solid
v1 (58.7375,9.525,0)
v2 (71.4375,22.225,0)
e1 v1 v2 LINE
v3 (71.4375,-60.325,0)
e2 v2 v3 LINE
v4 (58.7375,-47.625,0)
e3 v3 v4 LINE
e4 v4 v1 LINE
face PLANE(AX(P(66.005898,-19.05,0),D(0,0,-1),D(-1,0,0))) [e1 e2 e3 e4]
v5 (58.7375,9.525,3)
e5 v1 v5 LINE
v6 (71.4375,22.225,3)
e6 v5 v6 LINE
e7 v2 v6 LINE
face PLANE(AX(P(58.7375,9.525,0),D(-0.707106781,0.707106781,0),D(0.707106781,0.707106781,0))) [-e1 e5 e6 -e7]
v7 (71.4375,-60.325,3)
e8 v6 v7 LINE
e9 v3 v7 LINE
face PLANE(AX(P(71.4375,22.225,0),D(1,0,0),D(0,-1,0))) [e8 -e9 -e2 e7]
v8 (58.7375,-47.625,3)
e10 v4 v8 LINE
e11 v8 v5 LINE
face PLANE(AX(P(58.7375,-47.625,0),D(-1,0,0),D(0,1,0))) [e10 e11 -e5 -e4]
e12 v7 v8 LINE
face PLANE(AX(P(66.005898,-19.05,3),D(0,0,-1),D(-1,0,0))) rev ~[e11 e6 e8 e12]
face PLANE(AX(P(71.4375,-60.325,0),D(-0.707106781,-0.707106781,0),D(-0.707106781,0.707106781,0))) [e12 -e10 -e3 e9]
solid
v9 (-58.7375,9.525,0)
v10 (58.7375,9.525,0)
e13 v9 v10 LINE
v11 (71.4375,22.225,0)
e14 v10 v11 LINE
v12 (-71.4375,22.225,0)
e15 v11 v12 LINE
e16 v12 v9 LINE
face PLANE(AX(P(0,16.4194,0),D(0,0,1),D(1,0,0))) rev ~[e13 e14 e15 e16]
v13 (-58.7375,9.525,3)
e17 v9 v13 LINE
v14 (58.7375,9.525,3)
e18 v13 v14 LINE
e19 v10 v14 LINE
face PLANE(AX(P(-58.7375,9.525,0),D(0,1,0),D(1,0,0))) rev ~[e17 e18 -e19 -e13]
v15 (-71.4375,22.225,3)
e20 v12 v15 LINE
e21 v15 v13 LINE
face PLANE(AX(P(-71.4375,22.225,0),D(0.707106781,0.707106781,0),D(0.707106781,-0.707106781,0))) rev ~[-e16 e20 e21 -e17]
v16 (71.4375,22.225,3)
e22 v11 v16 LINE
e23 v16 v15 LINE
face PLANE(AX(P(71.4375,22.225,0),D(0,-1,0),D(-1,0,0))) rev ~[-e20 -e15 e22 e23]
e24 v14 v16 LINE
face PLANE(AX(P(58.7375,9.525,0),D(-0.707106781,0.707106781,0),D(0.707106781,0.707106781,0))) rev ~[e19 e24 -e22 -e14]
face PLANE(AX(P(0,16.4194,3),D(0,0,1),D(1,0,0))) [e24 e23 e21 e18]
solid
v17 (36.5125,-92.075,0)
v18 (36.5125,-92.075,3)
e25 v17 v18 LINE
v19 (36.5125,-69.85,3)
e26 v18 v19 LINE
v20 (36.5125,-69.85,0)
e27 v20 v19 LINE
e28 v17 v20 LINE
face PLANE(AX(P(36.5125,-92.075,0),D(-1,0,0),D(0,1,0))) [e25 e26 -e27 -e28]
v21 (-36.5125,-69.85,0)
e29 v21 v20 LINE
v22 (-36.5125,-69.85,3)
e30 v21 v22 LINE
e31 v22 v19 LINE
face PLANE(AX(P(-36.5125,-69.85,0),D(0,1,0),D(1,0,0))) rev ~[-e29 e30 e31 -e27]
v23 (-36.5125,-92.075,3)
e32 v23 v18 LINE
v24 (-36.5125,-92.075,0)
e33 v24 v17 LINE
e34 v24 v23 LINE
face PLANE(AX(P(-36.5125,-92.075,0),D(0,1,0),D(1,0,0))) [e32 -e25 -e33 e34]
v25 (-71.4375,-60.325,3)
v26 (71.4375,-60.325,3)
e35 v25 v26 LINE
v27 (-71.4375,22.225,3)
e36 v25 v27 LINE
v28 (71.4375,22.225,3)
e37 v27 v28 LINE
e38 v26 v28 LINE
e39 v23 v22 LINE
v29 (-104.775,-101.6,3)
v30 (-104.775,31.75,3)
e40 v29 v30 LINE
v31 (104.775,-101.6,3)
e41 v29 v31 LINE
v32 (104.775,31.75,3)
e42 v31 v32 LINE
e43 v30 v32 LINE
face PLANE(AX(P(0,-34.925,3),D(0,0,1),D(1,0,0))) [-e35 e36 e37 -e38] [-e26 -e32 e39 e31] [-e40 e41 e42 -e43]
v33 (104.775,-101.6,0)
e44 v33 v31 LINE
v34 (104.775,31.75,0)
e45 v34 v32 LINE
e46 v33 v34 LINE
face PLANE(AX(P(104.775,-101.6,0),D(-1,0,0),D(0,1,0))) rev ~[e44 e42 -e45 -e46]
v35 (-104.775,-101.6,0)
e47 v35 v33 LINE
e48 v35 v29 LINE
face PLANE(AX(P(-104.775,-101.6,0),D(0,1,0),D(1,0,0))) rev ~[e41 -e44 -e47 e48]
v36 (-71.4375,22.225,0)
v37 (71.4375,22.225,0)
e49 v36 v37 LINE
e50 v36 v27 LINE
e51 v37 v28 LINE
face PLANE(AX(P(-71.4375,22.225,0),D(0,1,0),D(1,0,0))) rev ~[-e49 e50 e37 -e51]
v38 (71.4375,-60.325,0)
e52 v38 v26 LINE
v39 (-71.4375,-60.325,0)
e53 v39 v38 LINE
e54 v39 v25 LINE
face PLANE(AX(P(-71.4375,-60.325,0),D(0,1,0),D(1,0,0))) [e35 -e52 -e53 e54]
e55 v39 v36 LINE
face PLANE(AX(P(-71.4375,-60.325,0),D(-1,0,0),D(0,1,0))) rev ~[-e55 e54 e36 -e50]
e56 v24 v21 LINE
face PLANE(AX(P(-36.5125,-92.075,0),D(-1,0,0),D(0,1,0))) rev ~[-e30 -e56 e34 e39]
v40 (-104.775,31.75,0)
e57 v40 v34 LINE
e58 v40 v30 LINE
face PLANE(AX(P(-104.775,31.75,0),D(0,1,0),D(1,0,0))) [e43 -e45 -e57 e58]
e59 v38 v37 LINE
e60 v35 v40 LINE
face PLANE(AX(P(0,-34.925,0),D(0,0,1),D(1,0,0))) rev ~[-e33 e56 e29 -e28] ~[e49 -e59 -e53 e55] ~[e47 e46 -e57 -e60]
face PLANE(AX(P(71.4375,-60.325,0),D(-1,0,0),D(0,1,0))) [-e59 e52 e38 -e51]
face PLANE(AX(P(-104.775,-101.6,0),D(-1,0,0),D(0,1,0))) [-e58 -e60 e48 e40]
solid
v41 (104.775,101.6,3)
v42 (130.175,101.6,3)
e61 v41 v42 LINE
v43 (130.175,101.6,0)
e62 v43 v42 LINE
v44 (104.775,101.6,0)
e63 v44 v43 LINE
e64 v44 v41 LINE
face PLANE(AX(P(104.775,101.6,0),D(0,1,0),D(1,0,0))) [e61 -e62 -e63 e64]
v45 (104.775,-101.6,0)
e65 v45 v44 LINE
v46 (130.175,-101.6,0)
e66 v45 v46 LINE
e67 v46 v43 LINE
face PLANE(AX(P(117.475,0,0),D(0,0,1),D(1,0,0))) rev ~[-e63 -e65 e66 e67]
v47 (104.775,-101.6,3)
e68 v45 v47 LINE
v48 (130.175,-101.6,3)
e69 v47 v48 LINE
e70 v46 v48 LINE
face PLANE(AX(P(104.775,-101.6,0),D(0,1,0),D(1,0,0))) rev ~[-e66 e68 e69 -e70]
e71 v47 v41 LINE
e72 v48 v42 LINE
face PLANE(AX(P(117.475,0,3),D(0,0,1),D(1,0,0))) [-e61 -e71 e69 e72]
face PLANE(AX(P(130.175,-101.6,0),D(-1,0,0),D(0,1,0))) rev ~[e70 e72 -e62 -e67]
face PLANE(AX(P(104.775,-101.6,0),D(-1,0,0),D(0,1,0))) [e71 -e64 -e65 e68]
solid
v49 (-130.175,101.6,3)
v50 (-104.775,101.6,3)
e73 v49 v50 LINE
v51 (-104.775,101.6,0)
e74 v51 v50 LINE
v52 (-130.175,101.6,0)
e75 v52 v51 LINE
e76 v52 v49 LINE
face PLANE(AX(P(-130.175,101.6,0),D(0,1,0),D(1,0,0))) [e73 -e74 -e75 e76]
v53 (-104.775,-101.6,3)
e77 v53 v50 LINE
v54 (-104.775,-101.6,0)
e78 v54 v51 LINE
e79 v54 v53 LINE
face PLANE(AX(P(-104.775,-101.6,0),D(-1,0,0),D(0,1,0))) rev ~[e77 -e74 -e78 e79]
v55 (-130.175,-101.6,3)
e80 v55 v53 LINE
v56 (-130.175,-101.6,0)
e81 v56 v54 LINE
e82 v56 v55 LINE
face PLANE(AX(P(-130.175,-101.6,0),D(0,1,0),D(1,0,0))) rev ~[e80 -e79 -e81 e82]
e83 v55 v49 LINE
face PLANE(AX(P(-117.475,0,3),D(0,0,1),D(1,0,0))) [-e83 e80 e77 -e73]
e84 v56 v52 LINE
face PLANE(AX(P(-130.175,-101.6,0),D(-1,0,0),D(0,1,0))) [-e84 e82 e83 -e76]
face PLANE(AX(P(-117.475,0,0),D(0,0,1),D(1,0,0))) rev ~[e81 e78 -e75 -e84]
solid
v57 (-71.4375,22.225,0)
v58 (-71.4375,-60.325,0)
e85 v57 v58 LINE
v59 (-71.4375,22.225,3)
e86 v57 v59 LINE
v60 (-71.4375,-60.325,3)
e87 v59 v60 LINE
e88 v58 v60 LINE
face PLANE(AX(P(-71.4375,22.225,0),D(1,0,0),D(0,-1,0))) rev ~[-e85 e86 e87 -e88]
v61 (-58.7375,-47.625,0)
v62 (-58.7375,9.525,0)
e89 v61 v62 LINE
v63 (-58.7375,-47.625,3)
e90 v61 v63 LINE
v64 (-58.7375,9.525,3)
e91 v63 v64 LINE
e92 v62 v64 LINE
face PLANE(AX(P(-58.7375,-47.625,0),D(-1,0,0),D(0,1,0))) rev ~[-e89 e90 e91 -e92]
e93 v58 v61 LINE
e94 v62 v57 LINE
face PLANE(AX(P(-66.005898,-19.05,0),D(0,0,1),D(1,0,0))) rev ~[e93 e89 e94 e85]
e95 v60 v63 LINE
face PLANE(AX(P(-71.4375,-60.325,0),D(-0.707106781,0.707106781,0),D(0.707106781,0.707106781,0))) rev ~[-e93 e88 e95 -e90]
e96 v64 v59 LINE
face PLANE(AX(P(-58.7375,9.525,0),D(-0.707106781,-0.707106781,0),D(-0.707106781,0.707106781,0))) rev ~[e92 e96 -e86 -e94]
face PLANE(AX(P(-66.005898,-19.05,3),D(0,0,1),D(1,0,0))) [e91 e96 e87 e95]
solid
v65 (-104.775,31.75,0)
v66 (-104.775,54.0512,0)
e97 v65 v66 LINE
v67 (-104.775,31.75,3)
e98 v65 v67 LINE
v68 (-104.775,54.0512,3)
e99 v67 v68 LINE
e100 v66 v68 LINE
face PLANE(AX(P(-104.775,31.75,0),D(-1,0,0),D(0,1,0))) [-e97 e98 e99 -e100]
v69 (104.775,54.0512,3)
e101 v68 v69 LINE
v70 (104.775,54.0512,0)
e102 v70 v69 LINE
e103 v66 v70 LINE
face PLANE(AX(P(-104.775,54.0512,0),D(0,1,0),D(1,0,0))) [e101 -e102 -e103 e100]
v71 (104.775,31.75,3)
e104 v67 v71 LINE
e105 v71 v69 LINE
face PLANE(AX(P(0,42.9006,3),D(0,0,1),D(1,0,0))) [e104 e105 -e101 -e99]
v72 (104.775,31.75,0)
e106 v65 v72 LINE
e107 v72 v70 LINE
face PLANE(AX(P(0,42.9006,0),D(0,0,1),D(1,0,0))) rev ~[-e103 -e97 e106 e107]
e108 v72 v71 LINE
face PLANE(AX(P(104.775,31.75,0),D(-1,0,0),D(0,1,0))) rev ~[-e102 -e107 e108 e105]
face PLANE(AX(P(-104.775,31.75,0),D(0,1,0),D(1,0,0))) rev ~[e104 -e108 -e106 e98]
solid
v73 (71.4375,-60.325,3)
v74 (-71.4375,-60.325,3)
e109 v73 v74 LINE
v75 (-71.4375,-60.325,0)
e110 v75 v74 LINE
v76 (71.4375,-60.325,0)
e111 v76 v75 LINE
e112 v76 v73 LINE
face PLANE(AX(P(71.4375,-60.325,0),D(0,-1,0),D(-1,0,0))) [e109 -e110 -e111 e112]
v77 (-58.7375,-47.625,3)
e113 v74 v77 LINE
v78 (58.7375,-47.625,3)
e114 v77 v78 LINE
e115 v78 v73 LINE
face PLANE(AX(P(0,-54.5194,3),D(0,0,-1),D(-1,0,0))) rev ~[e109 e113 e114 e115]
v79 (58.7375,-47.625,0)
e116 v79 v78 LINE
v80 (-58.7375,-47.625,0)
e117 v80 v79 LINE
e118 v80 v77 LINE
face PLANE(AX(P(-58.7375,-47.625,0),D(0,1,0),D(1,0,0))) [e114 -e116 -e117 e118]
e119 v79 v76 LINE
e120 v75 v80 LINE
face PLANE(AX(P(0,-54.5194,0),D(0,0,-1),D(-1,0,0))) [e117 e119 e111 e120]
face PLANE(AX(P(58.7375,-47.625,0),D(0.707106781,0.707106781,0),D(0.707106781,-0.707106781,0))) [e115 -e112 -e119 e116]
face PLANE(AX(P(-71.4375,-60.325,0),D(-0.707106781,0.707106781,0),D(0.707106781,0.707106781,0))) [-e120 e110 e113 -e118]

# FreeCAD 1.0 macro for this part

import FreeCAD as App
import Part
import Sketcher

V = App.Vector
Q = App.Units.Quantity

doc = App.newDocument("Part")
body = doc.addObject("PartDesign::Body", "Body")

sketch1 = doc.addObject("Sketcher::SketchObject", "Sketch")
body.addObject(sketch1)
sketch1.AttachmentSupport = (doc.XY_Plane, [""])
sketch1.MapMode = "FlatFace"
sketch1.addGeometry(Part.LineSegment(V(-105, 32, 0), V(-105, -102, 0)), False)
sketch1.addGeometry(Part.LineSegment(V(-105, -102, 0), V(105, -102, 0)), False)
sketch1.addGeometry(Part.LineSegment(V(105, -102, 0), V(105, 32, 0)), False)
sketch1.addGeometry(Part.LineSegment(V(105, 32, 0), V(-105, 32, 0)), False)
sketch1.addGeometry(Part.LineSegment(V(37, -92, 0), V(-37, -92, 0)), False)
sketch1.addGeometry(Part.LineSegment(V(-37, -92, 0), V(-37, -70, 0)), False)
sketch1.addGeometry(Part.LineSegment(V(-37, -70, 0), V(37, -70, 0)), False)
sketch1.addGeometry(Part.LineSegment(V(37, -70, 0), V(37, -92, 0)), False)
sketch1.addGeometry(Part.LineSegment(V(71, -60, 0), V(-71, -60, 0)), False)
sketch1.addGeometry(Part.LineSegment(V(-71, -60, 0), V(-71, 22, 0)), False)
sketch1.addGeometry(Part.LineSegment(V(-71, 22, 0), V(71, 22, 0)), False)
sketch1.addGeometry(Part.LineSegment(V(71, 22, 0), V(71, -60, 0)), False)
sketch1.addConstraint(Sketcher.Constraint("Coincident", 0, 2, 1, 1))
sketch1.addConstraint(Sketcher.Constraint("Coincident", 1, 2, 2, 1))
sketch1.addConstraint(Sketcher.Constraint("Coincident", 2, 2, 3, 1))
sketch1.addConstraint(Sketcher.Constraint("Coincident", 3, 2, 0, 1))
sketch1.addConstraint(Sketcher.Constraint("Coincident", 4, 2, 5, 1))
sketch1.addConstraint(Sketcher.Constraint("Coincident", 5, 2, 6, 1))
sketch1.addConstraint(Sketcher.Constraint("Coincident", 6, 2, 7, 1))
sketch1.addConstraint(Sketcher.Constraint("Coincident", 7, 2, 4, 1))
sketch1.addConstraint(Sketcher.Constraint("Coincident", 8, 2, 9, 1))
sketch1.addConstraint(Sketcher.Constraint("Coincident", 9, 2, 10, 1))
sketch1.addConstraint(Sketcher.Constraint("Coincident", 10, 2, 11, 1))
sketch1.addConstraint(Sketcher.Constraint("Coincident", 11, 2, 8, 1))
sketch1.addConstraint(Sketcher.Constraint("Vertical", 0))
sketch1.addConstraint(Sketcher.Constraint("Horizontal", 1))
sketch1.addConstraint(Sketcher.Constraint("Vertical", 2))
sketch1.addConstraint(Sketcher.Constraint("Horizontal", 3))
sketch1.addConstraint(Sketcher.Constraint("Horizontal", 4))
sketch1.addConstraint(Sketcher.Constraint("Vertical", 5))
sketch1.addConstraint(Sketcher.Constraint("Horizontal", 6))
sketch1.addConstraint(Sketcher.Constraint("Vertical", 7))
sketch1.addConstraint(Sketcher.Constraint("Horizontal", 8))
sketch1.addConstraint(Sketcher.Constraint("Vertical", 9))
sketch1.addConstraint(Sketcher.Constraint("Horizontal", 10))
sketch1.addConstraint(Sketcher.Constraint("Vertical", 11))
sketch1.addConstraint(Sketcher.Constraint("DistanceY", 0, 2, -1, 1, Q("4 in")))
sketch1.addConstraint(Sketcher.Constraint("DistanceY", 5, 2, 3, 2, Q("4 in")))
sketch1.addConstraint(Sketcher.Constraint("DistanceX", 1, 1, 1, 2, Q("8.25 in")))
sketch1.addConstraint(Sketcher.Constraint("DistanceY", 0, 2, 0, 1, Q("5.25 in")))
sketch1.addConstraint(Sketcher.Constraint("DistanceY", 9, 1, 9, 2, Q("3.25 in")))
sketch1.addConstraint(Sketcher.Constraint("DistanceY", 4, 2, 9, 2, Q("4.5 in")))
sketch1.addConstraint(Sketcher.Constraint("DistanceX", 4, 2, 4, 1, Q("2.875 in")))
sketch1.addConstraint(Sketcher.Constraint("DistanceX", 8, 2, 8, 1, Q("5.625 in")))
sketch1.addConstraint(Sketcher.Constraint("DistanceY", 5, 1, 5, 2, Q("0.875 in")))
sketch1.addConstraint(Sketcher.Constraint("DistanceX", 8, 2, 6, 2, Q("4.25 in")))
sketch1.addConstraint(Sketcher.Constraint("DistanceX", 0, 2, -1, 1, Q("4.125 in")))
sketch1.addConstraint(Sketcher.Constraint("DistanceX", 4, 2, -1, 1, Q("1.4375 in")))
pad1 = doc.addObject("PartDesign::Pad", "Pad")
body.addObject(pad1)
pad1.Profile = sketch1
pad1.Length = 3
body2 = doc.addObject("PartDesign::Body", "Body001")

sketch2 = doc.addObject("Sketcher::SketchObject", "Sketch001")
body2.addObject(sketch2)
sketch2.AttachmentSupport = (doc.getObject("XY_Plane001"), [""])
sketch2.MapMode = "FlatFace"
sketch2.addGeometry(Part.LineSegment(V(-105, 54, 0), V(-105, 32, 0)), False)
sketch2.addGeometry(Part.LineSegment(V(-105, 32, 0), V(105, 32, 0)), False)
sketch2.addGeometry(Part.LineSegment(V(105, 32, 0), V(105, 54, 0)), False)
sketch2.addGeometry(Part.LineSegment(V(105, 54, 0), V(-105, 54, 0)), False)
sketch2.addConstraint(Sketcher.Constraint("Coincident", 0, 2, 1, 1))
sketch2.addConstraint(Sketcher.Constraint("Coincident", 1, 2, 2, 1))
sketch2.addConstraint(Sketcher.Constraint("Coincident", 2, 2, 3, 1))
sketch2.addConstraint(Sketcher.Constraint("Coincident", 3, 2, 0, 1))
sketch2.addConstraint(Sketcher.Constraint("Vertical", 0))
sketch2.addConstraint(Sketcher.Constraint("Horizontal", 1))
sketch2.addConstraint(Sketcher.Constraint("Vertical", 2))
sketch2.addConstraint(Sketcher.Constraint("Horizontal", 3))
sketch2.addConstraint(Sketcher.Constraint("DistanceX", 1, 1, 1, 2, Q("8.25 in")))
sketch2.addConstraint(Sketcher.Constraint("DistanceY", 0, 2, 0, 1, Q("0.878 in")))
sketch2.addConstraint(Sketcher.Constraint("DistanceY", -1, 1, 0, 2, Q("1.25 in")))
sketch2.addConstraint(Sketcher.Constraint("DistanceX", 0, 2, -1, 1, Q("4.125 in")))
pad2 = doc.addObject("PartDesign::Pad", "Pad001")
body2.addObject(pad2)
pad2.Profile = sketch2
pad2.Length = 3
body3 = doc.addObject("PartDesign::Body", "Body002")

sketch3 = doc.addObject("Sketcher::SketchObject", "Sketch002")
body3.addObject(sketch3)
sketch3.AttachmentSupport = (doc.getObject("XY_Plane002"), [""])
sketch3.MapMode = "FlatFace"
sketch3.addGeometry(Part.LineSegment(V(-130, 102, 0), V(-130, -102, 0)), False)
sketch3.addGeometry(Part.LineSegment(V(-130, -102, 0), V(-105, -102, 0)), False)
sketch3.addGeometry(Part.LineSegment(V(-105, -102, 0), V(-105, 102, 0)), False)
sketch3.addGeometry(Part.LineSegment(V(-105, 102, 0), V(-130, 102, 0)), False)
sketch3.addConstraint(Sketcher.Constraint("Coincident", 0, 2, 1, 1))
sketch3.addConstraint(Sketcher.Constraint("Coincident", 1, 2, 2, 1))
sketch3.addConstraint(Sketcher.Constraint("Coincident", 2, 2, 3, 1))
sketch3.addConstraint(Sketcher.Constraint("Coincident", 3, 2, 0, 1))
sketch3.addConstraint(Sketcher.Constraint("Vertical", 0))
sketch3.addConstraint(Sketcher.Constraint("Horizontal", 1))
sketch3.addConstraint(Sketcher.Constraint("Vertical", 2))
sketch3.addConstraint(Sketcher.Constraint("Horizontal", 3))
sketch3.addConstraint(Sketcher.Constraint("DistanceX", 1, 1, 1, 2, Q("1 in")))
sketch3.addConstraint(Sketcher.Constraint("DistanceY", 0, 2, 0, 1, Q("8 in")))
sketch3.addConstraint(Sketcher.Constraint("DistanceY", 0, 2, -1, 1, Q("4 in")))
sketch3.addConstraint(Sketcher.Constraint("DistanceX", 0, 2, -1, 1, Q("5.125 in")))
pad3 = doc.addObject("PartDesign::Pad", "Pad002")
body3.addObject(pad3)
pad3.Profile = sketch3
pad3.Length = 3
body4 = doc.addObject("PartDesign::Body", "Body003")

sketch4 = doc.addObject("Sketcher::SketchObject", "Sketch003")
body4.addObject(sketch4)
sketch4.AttachmentSupport = (doc.getObject("XY_Plane003"), [""])
sketch4.MapMode = "FlatFace"
sketch4.addGeometry(Part.LineSegment(V(105, 102, 0), V(105, -102, 0)), False)
sketch4.addGeometry(Part.LineSegment(V(105, -102, 0), V(130, -102, 0)), False)
sketch4.addGeometry(Part.LineSegment(V(130, -102, 0), V(130, 102, 0)), False)
sketch4.addGeometry(Part.LineSegment(V(130, 102, 0), V(105, 102, 0)), False)
sketch4.addConstraint(Sketcher.Constraint("Coincident", 0, 2, 1, 1))
sketch4.addConstraint(Sketcher.Constraint("Coincident", 1, 2, 2, 1))
sketch4.addConstraint(Sketcher.Constraint("Coincident", 2, 2, 3, 1))
sketch4.addConstraint(Sketcher.Constraint("Coincident", 3, 2, 0, 1))
sketch4.addConstraint(Sketcher.Constraint("Vertical", 0))
sketch4.addConstraint(Sketcher.Constraint("Horizontal", 1))
sketch4.addConstraint(Sketcher.Constraint("Vertical", 2))
sketch4.addConstraint(Sketcher.Constraint("Horizontal", 3))
sketch4.addConstraint(Sketcher.Constraint("DistanceX", 1, 1, 1, 2, Q("1 in")))
sketch4.addConstraint(Sketcher.Constraint("DistanceY", 0, 2, 0, 1, Q("8 in")))
sketch4.addConstraint(Sketcher.Constraint("DistanceY", 0, 2, -1, 1, Q("4 in")))
sketch4.addConstraint(Sketcher.Constraint("DistanceX", -1, 1, 0, 2, Q("4.125 in")))
pad4 = doc.addObject("PartDesign::Pad", "Pad003")
body4.addObject(pad4)
pad4.Profile = sketch4
pad4.Length = 3
body5 = doc.addObject("PartDesign::Body", "Body004")

sketch5 = doc.addObject("Sketcher::SketchObject", "Sketch004")
body5.addObject(sketch5)
sketch5.AttachmentSupport = (doc.getObject("XY_Plane004"), [""])
sketch5.MapMode = "FlatFace"
sketch5.addGeometry(Part.LineSegment(V(71, 22, 0), V(59, 10, 0)), False)
sketch5.addGeometry(Part.LineSegment(V(59, 10, 0), V(59, -48, 0)), False)
sketch5.addGeometry(Part.LineSegment(V(59, -48, 0), V(71, -60, 0)), False)
sketch5.addGeometry(Part.LineSegment(V(71, -60, 0), V(71, 22, 0)), False)
sketch5.addConstraint(Sketcher.Constraint("Coincident", 0, 2, 1, 1))
sketch5.addConstraint(Sketcher.Constraint("Coincident", 1, 2, 2, 1))
sketch5.addConstraint(Sketcher.Constraint("Coincident", 2, 2, 3, 1))
sketch5.addConstraint(Sketcher.Constraint("Coincident", 3, 2, 0, 1))
sketch5.addConstraint(Sketcher.Constraint("Vertical", 1))
sketch5.addConstraint(Sketcher.Constraint("Vertical", 3))
sketch5.addConstraint(Sketcher.Constraint("Perpendicular", 0, 2))
sketch5.addConstraint(Sketcher.Constraint("Equal", 0, 2))
sketch5.addConstraint(Sketcher.Constraint("DistanceY", 1, 2, 1, 1, Q("2.25 in")))
sketch5.addConstraint(Sketcher.Constraint("DistanceY", 3, 1, 3, 2, Q("3.25 in")))
sketch5.addConstraint(Sketcher.Constraint("DistanceX", -1, 1, 0, 2, Q("2.3125 in")))
sketch5.addConstraint(Sketcher.Constraint("DistanceY", -1, 1, 0, 2, Q("0.375 in")))
pad5 = doc.addObject("PartDesign::Pad", "Pad004")
body5.addObject(pad5)
pad5.Profile = sketch5
pad5.Length = 3
body6 = doc.addObject("PartDesign::Body", "Body005")

sketch6 = doc.addObject("Sketcher::SketchObject", "Sketch005")
body6.addObject(sketch6)
sketch6.AttachmentSupport = (doc.getObject("XY_Plane005"), [""])
sketch6.MapMode = "FlatFace"
sketch6.addGeometry(Part.LineSegment(V(-71, -60, 0), V(-59, -48, 0)), False)
sketch6.addGeometry(Part.LineSegment(V(-59, -48, 0), V(-59, 10, 0)), False)
sketch6.addGeometry(Part.LineSegment(V(-59, 10, 0), V(-71, 22, 0)), False)
sketch6.addGeometry(Part.LineSegment(V(-71, 22, 0), V(-71, -60, 0)), False)
sketch6.addConstraint(Sketcher.Constraint("Coincident", 0, 2, 1, 1))
sketch6.addConstraint(Sketcher.Constraint("Coincident", 1, 2, 2, 1))
sketch6.addConstraint(Sketcher.Constraint("Coincident", 2, 2, 3, 1))
sketch6.addConstraint(Sketcher.Constraint("Coincident", 3, 2, 0, 1))
sketch6.addConstraint(Sketcher.Constraint("Vertical", 1))
sketch6.addConstraint(Sketcher.Constraint("Vertical", 3))
sketch6.addConstraint(Sketcher.Constraint("Perpendicular", 0, 2))
sketch6.addConstraint(Sketcher.Constraint("Equal", 0, 2))
sketch6.addConstraint(Sketcher.Constraint("DistanceY", 1, 1, 1, 2, Q("2.25 in")))
sketch6.addConstraint(Sketcher.Constraint("DistanceY", 3, 2, 3, 1, Q("3.25 in")))
sketch6.addConstraint(Sketcher.Constraint("DistanceX", 0, 2, -1, 1, Q("2.3125 in")))
sketch6.addConstraint(Sketcher.Constraint("DistanceY", 0, 2, -1, 1, Q("1.875 in")))
pad6 = doc.addObject("PartDesign::Pad", "Pad005")
body6.addObject(pad6)
pad6.Profile = sketch6
pad6.Length = 3
body7 = doc.addObject("PartDesign::Body", "Body006")

sketch7 = doc.addObject("Sketcher::SketchObject", "Sketch006")
body7.addObject(sketch7)
sketch7.AttachmentSupport = (doc.getObject("XY_Plane006"), [""])
sketch7.MapMode = "FlatFace"
sketch7.addGeometry(Part.LineSegment(V(-59, -48, 0), V(-71, -60, 0)), False)
sketch7.addGeometry(Part.LineSegment(V(-71, -60, 0), V(71, -60, 0)), False)
sketch7.addGeometry(Part.LineSegment(V(71, -60, 0), V(59, -48, 0)), False)
sketch7.addGeometry(Part.LineSegment(V(59, -48, 0), V(-59, -48, 0)), False)
sketch7.addConstraint(Sketcher.Constraint("Coincident", 0, 2, 1, 1))
sketch7.addConstraint(Sketcher.Constraint("Coincident", 1, 2, 2, 1))
sketch7.addConstraint(Sketcher.Constraint("Coincident", 2, 2, 3, 1))
sketch7.addConstraint(Sketcher.Constraint("Coincident", 3, 2, 0, 1))
sketch7.addConstraint(Sketcher.Constraint("Horizontal", 1))
sketch7.addConstraint(Sketcher.Constraint("Horizontal", 3))
sketch7.addConstraint(Sketcher.Constraint("Perpendicular", 0, 2))
sketch7.addConstraint(Sketcher.Constraint("Equal", 0, 2))
sketch7.addConstraint(Sketcher.Constraint("DistanceX", 2, 2, 1, 2, Q("0.5 in")))
sketch7.addConstraint(Sketcher.Constraint("DistanceX", 1, 1, 1, 2, Q("5.625 in")))
sketch7.addConstraint(Sketcher.Constraint("DistanceX", 0, 2, -1, 1, Q("2.8125 in")))
sketch7.addConstraint(Sketcher.Constraint("DistanceY", 0, 2, -1, 1, Q("2.375 in")))
pad7 = doc.addObject("PartDesign::Pad", "Pad006")
body7.addObject(pad7)
pad7.Profile = sketch7
pad7.Length = 3
body8 = doc.addObject("PartDesign::Body", "Body007")

sketch8 = doc.addObject("Sketcher::SketchObject", "Sketch007")
body8.addObject(sketch8)
sketch8.AttachmentSupport = (doc.getObject("XY_Plane007"), [""])
sketch8.MapMode = "FlatFace"
sketch8.addGeometry(Part.LineSegment(V(-59, 10, 0), V(59, 10, 0)), False)
sketch8.addGeometry(Part.LineSegment(V(59, 10, 0), V(71, 22, 0)), False)
sketch8.addGeometry(Part.LineSegment(V(71, 22, 0), V(-71, 22, 0)), False)
sketch8.addGeometry(Part.LineSegment(V(-71, 22, 0), V(-59, 10, 0)), False)
sketch8.addConstraint(Sketcher.Constraint("Coincident", 0, 2, 1, 1))
sketch8.addConstraint(Sketcher.Constraint("Coincident", 1, 2, 2, 1))
sketch8.addConstraint(Sketcher.Constraint("Coincident", 2, 2, 3, 1))
sketch8.addConstraint(Sketcher.Constraint("Coincident", 3, 2, 0, 1))
sketch8.addConstraint(Sketcher.Constraint("Horizontal", 0))
sketch8.addConstraint(Sketcher.Constraint("Horizontal", 2))
sketch8.addConstraint(Sketcher.Constraint("Perpendicular", 1, 3))
sketch8.addConstraint(Sketcher.Constraint("Equal", 1, 3))
sketch8.addConstraint(Sketcher.Constraint("DistanceX", 0, 2, 1, 2, Q("0.5 in")))
sketch8.addConstraint(Sketcher.Constraint("DistanceX", 0, 1, 0, 2, Q("4.625 in")))
sketch8.addConstraint(Sketcher.Constraint("DistanceX", -1, 1, 0, 2, Q("2.3125 in")))
sketch8.addConstraint(Sketcher.Constraint("DistanceY", -1, 1, 0, 2, Q("0.375 in")))
pad8 = doc.addObject("PartDesign::Pad", "Pad007")
body8.addObject(pad8)
pad8.Profile = sketch8
pad8.Length = 3

doc.recompute()
